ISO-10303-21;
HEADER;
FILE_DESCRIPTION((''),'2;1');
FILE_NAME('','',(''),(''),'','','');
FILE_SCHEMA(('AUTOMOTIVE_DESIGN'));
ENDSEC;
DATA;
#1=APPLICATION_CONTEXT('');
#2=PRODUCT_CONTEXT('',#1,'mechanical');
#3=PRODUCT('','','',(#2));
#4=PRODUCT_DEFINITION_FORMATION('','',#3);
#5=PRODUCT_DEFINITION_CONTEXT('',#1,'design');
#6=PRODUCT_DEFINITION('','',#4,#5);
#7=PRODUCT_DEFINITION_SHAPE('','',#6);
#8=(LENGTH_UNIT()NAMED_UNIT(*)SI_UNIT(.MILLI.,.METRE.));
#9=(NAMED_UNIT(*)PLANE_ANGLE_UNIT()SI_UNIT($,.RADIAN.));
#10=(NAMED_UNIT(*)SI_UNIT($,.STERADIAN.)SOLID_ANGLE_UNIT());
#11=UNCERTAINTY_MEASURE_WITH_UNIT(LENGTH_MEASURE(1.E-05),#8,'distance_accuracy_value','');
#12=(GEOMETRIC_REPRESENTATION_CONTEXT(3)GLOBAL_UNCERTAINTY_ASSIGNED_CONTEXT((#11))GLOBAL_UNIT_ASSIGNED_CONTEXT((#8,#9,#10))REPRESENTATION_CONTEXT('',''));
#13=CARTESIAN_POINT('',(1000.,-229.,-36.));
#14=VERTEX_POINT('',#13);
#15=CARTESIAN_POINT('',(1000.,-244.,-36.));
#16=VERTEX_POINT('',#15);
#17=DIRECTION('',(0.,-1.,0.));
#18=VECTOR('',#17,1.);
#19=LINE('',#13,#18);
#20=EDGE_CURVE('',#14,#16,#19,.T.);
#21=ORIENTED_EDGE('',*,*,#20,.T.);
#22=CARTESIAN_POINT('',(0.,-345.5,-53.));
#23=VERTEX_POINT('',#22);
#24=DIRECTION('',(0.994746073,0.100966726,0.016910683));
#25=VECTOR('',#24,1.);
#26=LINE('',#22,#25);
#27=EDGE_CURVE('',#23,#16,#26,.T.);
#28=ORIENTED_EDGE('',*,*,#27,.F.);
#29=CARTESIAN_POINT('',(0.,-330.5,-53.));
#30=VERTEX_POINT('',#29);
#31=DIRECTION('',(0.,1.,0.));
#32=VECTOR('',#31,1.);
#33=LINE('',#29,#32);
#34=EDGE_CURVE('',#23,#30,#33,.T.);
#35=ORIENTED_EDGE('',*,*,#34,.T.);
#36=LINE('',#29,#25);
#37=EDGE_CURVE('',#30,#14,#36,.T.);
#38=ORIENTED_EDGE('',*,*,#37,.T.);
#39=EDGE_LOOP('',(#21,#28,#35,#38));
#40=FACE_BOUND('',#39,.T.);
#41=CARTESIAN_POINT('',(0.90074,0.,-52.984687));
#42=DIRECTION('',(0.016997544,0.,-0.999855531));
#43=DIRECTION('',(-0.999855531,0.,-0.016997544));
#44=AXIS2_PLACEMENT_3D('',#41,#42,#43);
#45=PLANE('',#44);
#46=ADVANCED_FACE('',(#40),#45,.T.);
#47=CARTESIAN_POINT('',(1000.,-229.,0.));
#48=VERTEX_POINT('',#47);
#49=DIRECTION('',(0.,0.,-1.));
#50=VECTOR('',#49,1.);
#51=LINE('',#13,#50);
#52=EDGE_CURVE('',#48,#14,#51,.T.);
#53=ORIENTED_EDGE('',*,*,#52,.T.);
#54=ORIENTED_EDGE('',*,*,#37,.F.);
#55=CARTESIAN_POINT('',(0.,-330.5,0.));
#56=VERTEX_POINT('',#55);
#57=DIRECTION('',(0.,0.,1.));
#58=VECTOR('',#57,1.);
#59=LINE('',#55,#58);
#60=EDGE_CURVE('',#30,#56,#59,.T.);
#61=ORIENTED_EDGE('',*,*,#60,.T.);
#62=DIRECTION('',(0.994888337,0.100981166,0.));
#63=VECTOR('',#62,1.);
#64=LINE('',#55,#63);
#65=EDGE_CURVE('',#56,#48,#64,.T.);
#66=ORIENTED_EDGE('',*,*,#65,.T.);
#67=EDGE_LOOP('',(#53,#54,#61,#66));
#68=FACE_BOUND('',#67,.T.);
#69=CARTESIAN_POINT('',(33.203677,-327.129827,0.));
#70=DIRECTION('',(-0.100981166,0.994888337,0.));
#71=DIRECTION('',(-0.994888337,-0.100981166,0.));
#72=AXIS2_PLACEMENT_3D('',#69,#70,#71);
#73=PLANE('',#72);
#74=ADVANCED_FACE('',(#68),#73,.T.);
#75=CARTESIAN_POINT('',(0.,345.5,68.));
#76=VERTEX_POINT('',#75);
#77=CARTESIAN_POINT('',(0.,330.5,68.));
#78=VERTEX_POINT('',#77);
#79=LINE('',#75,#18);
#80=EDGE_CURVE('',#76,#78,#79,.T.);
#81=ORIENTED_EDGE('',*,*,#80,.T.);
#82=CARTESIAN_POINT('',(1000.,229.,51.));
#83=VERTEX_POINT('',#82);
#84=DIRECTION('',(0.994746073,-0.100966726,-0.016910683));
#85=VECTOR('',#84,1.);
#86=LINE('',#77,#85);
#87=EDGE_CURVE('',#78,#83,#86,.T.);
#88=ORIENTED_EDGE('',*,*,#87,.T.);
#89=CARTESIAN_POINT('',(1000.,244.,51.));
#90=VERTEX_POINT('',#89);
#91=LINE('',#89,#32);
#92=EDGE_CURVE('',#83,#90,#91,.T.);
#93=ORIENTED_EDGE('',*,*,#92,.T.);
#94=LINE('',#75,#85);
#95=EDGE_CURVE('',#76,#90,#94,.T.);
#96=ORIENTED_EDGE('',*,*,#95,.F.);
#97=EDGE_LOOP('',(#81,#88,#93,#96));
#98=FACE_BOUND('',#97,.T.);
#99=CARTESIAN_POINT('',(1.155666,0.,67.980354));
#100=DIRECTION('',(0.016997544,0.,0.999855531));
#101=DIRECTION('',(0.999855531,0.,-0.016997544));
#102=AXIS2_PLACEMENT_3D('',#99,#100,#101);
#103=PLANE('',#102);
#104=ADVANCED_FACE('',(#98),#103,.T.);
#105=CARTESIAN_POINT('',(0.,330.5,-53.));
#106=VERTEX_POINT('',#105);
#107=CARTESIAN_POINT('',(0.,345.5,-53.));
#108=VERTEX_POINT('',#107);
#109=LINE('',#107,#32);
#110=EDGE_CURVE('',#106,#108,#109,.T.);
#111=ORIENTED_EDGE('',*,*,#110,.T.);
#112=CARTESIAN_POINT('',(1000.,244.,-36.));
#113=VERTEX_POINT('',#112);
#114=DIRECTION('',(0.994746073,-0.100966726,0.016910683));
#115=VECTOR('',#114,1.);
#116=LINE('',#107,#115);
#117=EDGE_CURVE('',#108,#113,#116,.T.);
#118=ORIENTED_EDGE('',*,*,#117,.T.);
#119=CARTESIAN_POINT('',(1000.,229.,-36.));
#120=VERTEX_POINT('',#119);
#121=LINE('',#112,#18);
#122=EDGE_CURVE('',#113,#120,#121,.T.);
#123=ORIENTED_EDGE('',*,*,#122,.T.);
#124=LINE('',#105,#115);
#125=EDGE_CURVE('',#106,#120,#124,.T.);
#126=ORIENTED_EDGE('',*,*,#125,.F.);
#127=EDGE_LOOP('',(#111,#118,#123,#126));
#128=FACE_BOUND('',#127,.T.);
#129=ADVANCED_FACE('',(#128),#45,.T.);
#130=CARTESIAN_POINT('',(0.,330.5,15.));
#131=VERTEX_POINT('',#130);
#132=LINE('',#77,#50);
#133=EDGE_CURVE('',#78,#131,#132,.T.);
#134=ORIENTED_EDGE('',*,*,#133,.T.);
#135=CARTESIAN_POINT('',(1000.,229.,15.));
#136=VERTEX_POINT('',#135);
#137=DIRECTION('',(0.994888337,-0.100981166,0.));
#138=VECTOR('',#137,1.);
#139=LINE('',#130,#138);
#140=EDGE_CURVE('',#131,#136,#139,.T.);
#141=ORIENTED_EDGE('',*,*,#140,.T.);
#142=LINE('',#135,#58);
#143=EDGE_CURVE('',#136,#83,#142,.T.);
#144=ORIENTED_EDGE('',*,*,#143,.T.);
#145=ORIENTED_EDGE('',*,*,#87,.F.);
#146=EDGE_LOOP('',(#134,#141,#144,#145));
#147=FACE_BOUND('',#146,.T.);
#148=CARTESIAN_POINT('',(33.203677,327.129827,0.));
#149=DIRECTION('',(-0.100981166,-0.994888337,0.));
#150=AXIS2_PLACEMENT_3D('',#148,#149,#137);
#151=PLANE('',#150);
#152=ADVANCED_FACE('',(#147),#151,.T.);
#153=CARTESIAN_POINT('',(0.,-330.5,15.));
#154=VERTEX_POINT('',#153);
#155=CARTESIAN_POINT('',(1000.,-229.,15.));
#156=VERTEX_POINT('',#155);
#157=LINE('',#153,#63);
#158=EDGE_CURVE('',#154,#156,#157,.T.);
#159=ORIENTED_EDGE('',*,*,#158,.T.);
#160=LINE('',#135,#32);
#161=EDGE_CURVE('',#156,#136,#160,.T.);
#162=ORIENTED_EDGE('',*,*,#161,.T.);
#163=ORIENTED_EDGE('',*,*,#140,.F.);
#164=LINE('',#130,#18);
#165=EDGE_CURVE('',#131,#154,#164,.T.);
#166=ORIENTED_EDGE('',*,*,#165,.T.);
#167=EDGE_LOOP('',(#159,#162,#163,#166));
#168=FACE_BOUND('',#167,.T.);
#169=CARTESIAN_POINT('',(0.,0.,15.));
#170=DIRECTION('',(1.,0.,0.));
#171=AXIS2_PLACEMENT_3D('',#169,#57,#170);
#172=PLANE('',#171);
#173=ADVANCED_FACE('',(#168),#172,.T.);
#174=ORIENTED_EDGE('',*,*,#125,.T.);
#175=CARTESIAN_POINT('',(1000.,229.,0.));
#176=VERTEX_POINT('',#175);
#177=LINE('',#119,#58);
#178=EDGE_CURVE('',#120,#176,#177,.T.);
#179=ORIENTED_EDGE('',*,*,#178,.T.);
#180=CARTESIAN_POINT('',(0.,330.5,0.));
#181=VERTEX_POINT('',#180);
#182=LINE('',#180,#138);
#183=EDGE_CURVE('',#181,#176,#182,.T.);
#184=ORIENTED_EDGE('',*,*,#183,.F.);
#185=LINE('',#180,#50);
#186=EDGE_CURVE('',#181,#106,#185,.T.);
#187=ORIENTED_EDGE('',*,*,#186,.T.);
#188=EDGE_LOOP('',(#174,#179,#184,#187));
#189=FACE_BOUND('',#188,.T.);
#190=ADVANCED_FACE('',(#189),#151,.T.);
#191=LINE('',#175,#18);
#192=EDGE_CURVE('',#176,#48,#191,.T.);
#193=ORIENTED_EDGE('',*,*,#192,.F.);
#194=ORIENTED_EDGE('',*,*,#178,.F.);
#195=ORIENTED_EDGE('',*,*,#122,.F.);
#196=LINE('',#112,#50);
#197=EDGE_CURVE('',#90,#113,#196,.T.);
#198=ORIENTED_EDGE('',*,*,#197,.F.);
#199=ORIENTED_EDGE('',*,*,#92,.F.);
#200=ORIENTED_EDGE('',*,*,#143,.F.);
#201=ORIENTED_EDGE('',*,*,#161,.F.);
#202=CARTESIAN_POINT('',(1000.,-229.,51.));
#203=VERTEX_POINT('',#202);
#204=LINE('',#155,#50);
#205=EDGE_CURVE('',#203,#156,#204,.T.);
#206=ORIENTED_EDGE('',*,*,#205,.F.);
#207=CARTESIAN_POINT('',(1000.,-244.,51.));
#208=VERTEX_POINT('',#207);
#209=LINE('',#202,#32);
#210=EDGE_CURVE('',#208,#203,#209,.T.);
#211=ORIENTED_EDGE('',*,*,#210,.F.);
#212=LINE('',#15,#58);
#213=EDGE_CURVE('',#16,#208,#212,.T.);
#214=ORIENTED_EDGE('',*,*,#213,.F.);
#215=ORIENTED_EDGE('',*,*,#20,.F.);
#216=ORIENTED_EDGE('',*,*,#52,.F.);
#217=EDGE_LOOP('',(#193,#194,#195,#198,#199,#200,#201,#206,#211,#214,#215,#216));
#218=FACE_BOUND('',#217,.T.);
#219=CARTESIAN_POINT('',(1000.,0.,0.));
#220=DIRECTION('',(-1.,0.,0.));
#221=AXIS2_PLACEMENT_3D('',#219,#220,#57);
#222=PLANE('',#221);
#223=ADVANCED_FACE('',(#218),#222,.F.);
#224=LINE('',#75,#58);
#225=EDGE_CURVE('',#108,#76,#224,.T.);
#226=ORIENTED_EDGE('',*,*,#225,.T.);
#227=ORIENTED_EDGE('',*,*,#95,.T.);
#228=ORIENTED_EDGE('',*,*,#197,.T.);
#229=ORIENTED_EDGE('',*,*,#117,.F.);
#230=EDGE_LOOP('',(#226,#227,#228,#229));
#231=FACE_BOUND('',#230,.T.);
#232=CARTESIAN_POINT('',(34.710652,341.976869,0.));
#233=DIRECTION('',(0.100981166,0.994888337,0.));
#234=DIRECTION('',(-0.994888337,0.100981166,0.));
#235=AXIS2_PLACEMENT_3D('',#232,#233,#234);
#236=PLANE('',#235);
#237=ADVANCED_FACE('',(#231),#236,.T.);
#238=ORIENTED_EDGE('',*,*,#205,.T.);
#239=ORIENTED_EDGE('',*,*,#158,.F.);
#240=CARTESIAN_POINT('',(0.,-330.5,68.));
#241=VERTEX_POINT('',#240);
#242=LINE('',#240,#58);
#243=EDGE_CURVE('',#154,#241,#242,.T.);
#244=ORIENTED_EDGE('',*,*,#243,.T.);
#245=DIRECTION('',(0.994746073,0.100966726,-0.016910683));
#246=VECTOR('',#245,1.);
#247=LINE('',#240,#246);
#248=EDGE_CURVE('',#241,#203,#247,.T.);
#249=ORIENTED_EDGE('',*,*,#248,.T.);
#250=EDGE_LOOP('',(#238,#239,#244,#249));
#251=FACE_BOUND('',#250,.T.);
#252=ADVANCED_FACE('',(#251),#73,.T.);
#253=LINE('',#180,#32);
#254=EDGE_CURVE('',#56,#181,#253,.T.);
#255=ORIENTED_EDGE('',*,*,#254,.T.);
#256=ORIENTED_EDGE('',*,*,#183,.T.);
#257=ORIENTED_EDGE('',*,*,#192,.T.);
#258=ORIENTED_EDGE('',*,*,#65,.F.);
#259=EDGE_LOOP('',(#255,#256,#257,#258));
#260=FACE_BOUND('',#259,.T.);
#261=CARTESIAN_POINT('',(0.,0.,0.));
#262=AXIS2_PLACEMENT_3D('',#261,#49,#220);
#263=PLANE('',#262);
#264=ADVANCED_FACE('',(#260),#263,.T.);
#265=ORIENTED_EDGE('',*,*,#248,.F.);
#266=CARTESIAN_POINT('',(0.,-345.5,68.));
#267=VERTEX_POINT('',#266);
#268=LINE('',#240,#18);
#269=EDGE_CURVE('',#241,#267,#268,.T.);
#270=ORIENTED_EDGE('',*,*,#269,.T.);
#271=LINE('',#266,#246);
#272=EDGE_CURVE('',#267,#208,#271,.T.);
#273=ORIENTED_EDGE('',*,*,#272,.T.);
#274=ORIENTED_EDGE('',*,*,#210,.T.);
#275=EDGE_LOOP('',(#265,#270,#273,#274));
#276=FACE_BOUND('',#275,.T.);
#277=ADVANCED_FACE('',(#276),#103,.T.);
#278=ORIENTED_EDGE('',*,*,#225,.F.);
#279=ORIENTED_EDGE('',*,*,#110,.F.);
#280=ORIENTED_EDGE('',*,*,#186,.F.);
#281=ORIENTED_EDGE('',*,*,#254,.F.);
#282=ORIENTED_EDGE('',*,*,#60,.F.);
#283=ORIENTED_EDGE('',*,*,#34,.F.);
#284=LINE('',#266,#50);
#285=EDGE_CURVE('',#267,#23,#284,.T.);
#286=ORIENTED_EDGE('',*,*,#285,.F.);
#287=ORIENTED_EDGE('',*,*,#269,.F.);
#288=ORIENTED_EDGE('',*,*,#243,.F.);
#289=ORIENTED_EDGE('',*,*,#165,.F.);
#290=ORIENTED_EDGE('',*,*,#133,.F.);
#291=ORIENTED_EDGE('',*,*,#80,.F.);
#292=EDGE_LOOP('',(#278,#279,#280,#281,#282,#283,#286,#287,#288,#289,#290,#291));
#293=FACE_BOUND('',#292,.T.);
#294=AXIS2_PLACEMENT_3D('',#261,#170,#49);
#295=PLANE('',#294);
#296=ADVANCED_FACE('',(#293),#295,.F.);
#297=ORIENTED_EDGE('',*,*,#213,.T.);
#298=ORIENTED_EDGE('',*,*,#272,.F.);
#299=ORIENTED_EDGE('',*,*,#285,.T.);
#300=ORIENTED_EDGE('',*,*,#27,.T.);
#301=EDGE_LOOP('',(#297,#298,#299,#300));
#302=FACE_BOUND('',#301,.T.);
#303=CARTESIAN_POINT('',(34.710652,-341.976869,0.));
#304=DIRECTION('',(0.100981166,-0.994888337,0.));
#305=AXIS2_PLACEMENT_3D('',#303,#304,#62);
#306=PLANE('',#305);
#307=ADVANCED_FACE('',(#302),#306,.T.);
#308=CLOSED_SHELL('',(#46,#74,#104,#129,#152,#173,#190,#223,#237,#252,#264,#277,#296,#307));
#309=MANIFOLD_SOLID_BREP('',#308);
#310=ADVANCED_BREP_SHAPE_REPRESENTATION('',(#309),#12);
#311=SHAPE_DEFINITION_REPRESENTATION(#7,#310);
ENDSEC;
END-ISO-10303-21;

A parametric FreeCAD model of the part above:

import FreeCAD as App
import Part
import Sketcher

V = App.Vector
Q = App.Units.Quantity


def add_polygon(sketch, points):
    """Adds a closed chain of lines whose ends are joined by coincident constraints."""
    first, n = sketch.GeometryCount, len(points)
    for a, b in zip(points, points[1:] + points[:1]):
        sketch.addGeometry(Part.LineSegment(App.Vector(*a, 0), App.Vector(*b, 0)), False)
    for i in range(n):
        sketch.addConstraint(Sketcher.Constraint("Coincident", first + i, 2, first + (i + 1) % n, 1))

doc = App.newDocument("Part")
body = doc.addObject("PartDesign::Body", "Body")

# Sketch on YZ plane
sketch1 = body.newObject("Sketcher::SketchObject", "Sketch")
sketch1.AttachmentSupport = (doc.getObject("YZ_Plane"), [""])
sketch1.MapMode = "FlatFace"
add_polygon(sketch1, [(346, -53), (346, 68), (330, 68), (330, 15), (-330, 15), (-330, 68), (-346, 68), (-346, -53), (-330, -53), (-330, 0), (330, 0), (330, -53)])  # lines 0-11
sketch1.addConstraint(Sketcher.Constraint("Vertical", 0))
sketch1.addConstraint(Sketcher.Constraint("Horizontal", 1))
sketch1.addConstraint(Sketcher.Constraint("Vertical", 2))
sketch1.addConstraint(Sketcher.Constraint("Horizontal", 3))
sketch1.addConstraint(Sketcher.Constraint("Vertical", 4))
sketch1.addConstraint(Sketcher.Constraint("Horizontal", 5))
sketch1.addConstraint(Sketcher.Constraint("Vertical", 6))
sketch1.addConstraint(Sketcher.Constraint("Horizontal", 7))
sketch1.addConstraint(Sketcher.Constraint("Vertical", 8))
sketch1.addConstraint(Sketcher.Constraint("Horizontal", 9))
sketch1.addConstraint(Sketcher.Constraint("Vertical", 10))
sketch1.addConstraint(Sketcher.Constraint("Horizontal", 11))
sketch1.addConstraint(Sketcher.Constraint("Symmetric", 8, 2, 9, 2, -1, 1))
sketch1.addConstraint(Sketcher.Constraint("Symmetric", 1, 2, 4, 2, -2))
sketch1.addConstraint(Sketcher.Constraint("Symmetric", 6, 2, 11, 2, -2))
sketch1.addConstraint(Sketcher.Constraint("Vertical", 4, 2, 7, 2))
sketch1.addConstraint(Sketcher.Constraint("Equal", 4, 8))
sketch1.addConstraint(Sketcher.Constraint("DistanceX", 1, 2, 1, 1, Q("15 mm")))
sketch1.addConstraint(Sketcher.Constraint("DistanceX", 3, 2, 3, 1, Q("661 mm")))
sketch1.addConstraint(Sketcher.Constraint("DistanceY", 0, 1, 0, 2, Q("121 mm")))
sketch1.addConstraint(Sketcher.Constraint("DistanceY", 2, 2, 2, 1, Q("53 mm")))

# Sketch on YZ plane
sketch2 = body.newObject("Sketcher::SketchObject", "Sketch001")
sketch2.AttachmentSupport = (doc.getObject("YZ_Plane"), [""])
sketch2.MapMode = "FlatFace"
sketch2.AttachmentOffset = App.Placement(V(0, 0, 1000), App.Rotation())
add_polygon(sketch2, [(244, 51), (244, -36), (229, -36), (229, 0), (-229, 0), (-229, -36), (-244, -36), (-244, 51), (-229, 51), (-229, 15), (229, 15), (229, 51)])  # lines 0-11
sketch2.addConstraint(Sketcher.Constraint("Vertical", 0))
sketch2.addConstraint(Sketcher.Constraint("Horizontal", 1))
sketch2.addConstraint(Sketcher.Constraint("Vertical", 2))
sketch2.addConstraint(Sketcher.Constraint("Horizontal", 3))
sketch2.addConstraint(Sketcher.Constraint("Vertical", 4))
sketch2.addConstraint(Sketcher.Constraint("Horizontal", 5))
sketch2.addConstraint(Sketcher.Constraint("Vertical", 6))
sketch2.addConstraint(Sketcher.Constraint("Horizontal", 7))
sketch2.addConstraint(Sketcher.Constraint("Vertical", 8))
sketch2.addConstraint(Sketcher.Constraint("Horizontal", 9))
sketch2.addConstraint(Sketcher.Constraint("Vertical", 10))
sketch2.addConstraint(Sketcher.Constraint("Horizontal", 11))
sketch2.addConstraint(Sketcher.Constraint("Symmetric", 2, 2, 3, 2, -1, 1))
sketch2.addConstraint(Sketcher.Constraint("Symmetric", 0, 2, 5, 2, -2))
sketch2.addConstraint(Sketcher.Constraint("Symmetric", 7, 2, 10, 2, -2))
sketch2.addConstraint(Sketcher.Constraint("Vertical", 4, 2, 7, 2))
sketch2.addConstraint(Sketcher.Constraint("Equal", 4, 8))
sketch2.addConstraint(Sketcher.Constraint("DistanceX", 1, 2, 1, 1, Q("15 mm")))
sketch2.addConstraint(Sketcher.Constraint("DistanceX", 3, 2, 3, 1, Q("458 mm")))
sketch2.addConstraint(Sketcher.Constraint("DistanceY", 0, 2, 0, 1, Q("87 mm")))
sketch2.addConstraint(Sketcher.Constraint("DistanceY", 2, 1, 2, 2, Q("36 mm")))

additiveloft = body.newObject("PartDesign::AdditiveLoft", "AdditiveLoft")
additiveloft.Profile = sketch1
additiveloft.Sections = [sketch2]

doc.recompute()
